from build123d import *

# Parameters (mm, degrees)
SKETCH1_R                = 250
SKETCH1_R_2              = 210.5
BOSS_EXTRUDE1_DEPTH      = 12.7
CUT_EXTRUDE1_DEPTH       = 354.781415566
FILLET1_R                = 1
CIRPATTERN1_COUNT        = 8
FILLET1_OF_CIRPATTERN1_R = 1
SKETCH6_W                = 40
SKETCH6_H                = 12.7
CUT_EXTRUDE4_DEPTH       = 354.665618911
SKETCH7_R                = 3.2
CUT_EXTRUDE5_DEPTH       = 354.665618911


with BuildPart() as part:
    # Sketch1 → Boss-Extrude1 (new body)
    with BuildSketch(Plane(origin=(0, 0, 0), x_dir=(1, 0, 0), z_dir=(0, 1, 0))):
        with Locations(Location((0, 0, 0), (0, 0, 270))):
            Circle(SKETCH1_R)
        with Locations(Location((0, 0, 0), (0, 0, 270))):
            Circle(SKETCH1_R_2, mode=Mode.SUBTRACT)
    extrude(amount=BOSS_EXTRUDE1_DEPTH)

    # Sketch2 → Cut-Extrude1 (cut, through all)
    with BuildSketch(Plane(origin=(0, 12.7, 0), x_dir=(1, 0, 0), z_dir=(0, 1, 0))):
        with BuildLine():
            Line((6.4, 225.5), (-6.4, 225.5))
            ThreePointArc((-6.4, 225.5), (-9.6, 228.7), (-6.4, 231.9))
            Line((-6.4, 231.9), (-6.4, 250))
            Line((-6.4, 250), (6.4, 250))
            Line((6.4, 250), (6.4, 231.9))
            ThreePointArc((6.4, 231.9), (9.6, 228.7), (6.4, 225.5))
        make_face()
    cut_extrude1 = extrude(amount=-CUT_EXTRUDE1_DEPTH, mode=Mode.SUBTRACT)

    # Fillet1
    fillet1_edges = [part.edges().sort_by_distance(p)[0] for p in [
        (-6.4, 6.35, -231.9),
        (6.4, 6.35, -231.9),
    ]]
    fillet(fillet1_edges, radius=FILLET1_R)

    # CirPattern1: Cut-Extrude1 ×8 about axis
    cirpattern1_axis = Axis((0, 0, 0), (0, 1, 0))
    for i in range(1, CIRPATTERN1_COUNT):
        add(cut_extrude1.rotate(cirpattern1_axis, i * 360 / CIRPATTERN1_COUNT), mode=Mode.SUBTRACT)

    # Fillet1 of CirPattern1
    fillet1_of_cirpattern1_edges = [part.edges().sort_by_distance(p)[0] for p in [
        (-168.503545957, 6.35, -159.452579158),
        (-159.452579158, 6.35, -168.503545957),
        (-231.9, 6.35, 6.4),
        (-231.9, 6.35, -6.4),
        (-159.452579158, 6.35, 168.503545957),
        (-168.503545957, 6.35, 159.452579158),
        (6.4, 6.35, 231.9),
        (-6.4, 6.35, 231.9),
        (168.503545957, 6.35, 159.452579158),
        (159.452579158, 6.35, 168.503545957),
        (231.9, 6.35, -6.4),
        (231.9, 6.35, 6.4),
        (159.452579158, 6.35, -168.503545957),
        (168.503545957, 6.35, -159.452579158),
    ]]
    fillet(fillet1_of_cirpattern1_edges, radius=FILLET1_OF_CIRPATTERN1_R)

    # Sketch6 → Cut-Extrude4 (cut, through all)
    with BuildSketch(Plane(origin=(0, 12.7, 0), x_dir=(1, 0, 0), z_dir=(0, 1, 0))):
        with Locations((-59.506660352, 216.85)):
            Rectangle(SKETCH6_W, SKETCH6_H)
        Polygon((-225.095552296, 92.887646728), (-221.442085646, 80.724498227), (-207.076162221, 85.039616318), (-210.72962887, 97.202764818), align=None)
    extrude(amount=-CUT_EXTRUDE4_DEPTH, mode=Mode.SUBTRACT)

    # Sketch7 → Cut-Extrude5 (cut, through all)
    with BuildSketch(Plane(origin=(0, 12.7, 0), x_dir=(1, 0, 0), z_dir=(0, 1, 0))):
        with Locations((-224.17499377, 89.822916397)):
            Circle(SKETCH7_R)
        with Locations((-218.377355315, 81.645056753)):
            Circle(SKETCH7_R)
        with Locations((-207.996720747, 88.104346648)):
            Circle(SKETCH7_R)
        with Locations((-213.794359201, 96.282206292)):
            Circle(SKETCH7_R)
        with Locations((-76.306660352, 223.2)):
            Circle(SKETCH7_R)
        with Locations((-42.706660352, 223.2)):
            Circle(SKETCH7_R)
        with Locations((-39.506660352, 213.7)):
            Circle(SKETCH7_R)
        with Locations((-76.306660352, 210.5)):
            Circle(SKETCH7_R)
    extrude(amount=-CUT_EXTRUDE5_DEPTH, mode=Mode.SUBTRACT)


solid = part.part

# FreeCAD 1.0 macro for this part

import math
import FreeCAD as App
import Part
import Sketcher
Q = App.Units.Quantity


def edges_at(feature, points):
    """Names of the edges that pass closest to the given points."""
    edges = feature.Shape.Edges
    near = lambda p: min(range(len(edges)), key=lambda i: edges[i].distToShape(Part.Vertex(*p))[0])
    return sorted({f"Edge{near(p) + 1}" for p in points})

doc = App.newDocument("Part")
body = doc.addObject("PartDesign::Body", "Body")

# Sketch on XZ plane
sketch1 = body.newObject("Sketcher::SketchObject", "Sketch")
sketch1.AttachmentSupport = (doc.getObject("XZ_Plane"), [""])
sketch1.MapMode = "FlatFace"
sketch1.addGeometry([
    Part.Circle(App.Vector(0, 0, 0), App.Vector(0, 0, 1), 250),
    Part.Circle(App.Vector(0, 0, 0), App.Vector(0, 0, 1), 210),
], False)
sketch1.addConstraint([
    Sketcher.Constraint("Coincident", 0, 3, -1, 1),
    Sketcher.Constraint("Coincident", 1, 3, -1, 1),
    Sketcher.Constraint("Diameter", 0, Q("500 mm")),
    Sketcher.Constraint("Diameter", 1, Q("421 mm")),
])
pad1 = body.newObject("PartDesign::Pad", "Pad")
pad1.Profile = sketch1
pad1.Length = 12.7
pad1.Reversed = True

# Sketch on XZ plane
sketch2 = body.newObject("Sketcher::SketchObject", "Sketch001")
sketch2.AttachmentSupport = (doc.getObject("XZ_Plane"), [""])
sketch2.MapMode = "FlatFace"
sketch2.AttachmentOffset = App.Placement(App.Vector(0, 0, -12.7), App.Rotation())
sketch2.addGeometry([
    Part.LineSegment(App.Vector(-6.4, -225.5, 0), App.Vector(6.4, -225.5, 0)),  # 0
    Part.ArcOfCircle(Part.Circle(App.Vector(6.4, -228.7, 0), App.Vector(0, 0, 1), 3.2), math.radians(-90), math.radians(90)),  # 1
    Part.LineSegment(App.Vector(6.4, -231.9, 0), App.Vector(6.4, -250, 0)),  # 2
    Part.LineSegment(App.Vector(6.4, -250, 0), App.Vector(-6.4, -250, 0)),  # 3
    Part.LineSegment(App.Vector(-6.4, -250, 0), App.Vector(-6.4, -231.9, 0)),  # 4
    Part.ArcOfCircle(Part.Circle(App.Vector(-6.4, -228.7, 0), App.Vector(0, 0, 1), 3.2), math.radians(90), math.radians(270)),  # 5
], False)
sketch2.addConstraint([
    Sketcher.Constraint("Tangent", 0, 2, 1, 2),
    Sketcher.Constraint("Coincident", 1, 1, 2, 1),
    Sketcher.Constraint("Coincident", 2, 2, 3, 1),
    Sketcher.Constraint("Coincident", 3, 2, 4, 1),
    Sketcher.Constraint("Coincident", 4, 2, 5, 2),
    Sketcher.Constraint("Tangent", 5, 1, 0, 1),
    Sketcher.Constraint("Horizontal", 0),
    Sketcher.Constraint("Vertical", 2),
    Sketcher.Constraint("Horizontal", 3),
    Sketcher.Constraint("Vertical", 4),
    Sketcher.Constraint("Equal", 1, 5),
    Sketcher.Constraint("Vertical", 0, 2, 1, 1),
    Sketcher.Constraint("Vertical", 5, 3, 3, 2),
    Sketcher.Constraint("Radius", 1, Q("3.2 mm")),
    Sketcher.Constraint("DistanceX", 0, 1, 0, 2, Q("12.8 mm")),
    Sketcher.Constraint("DistanceY", 2, 2, 2, 1, Q("18.1 mm")),
    Sketcher.Constraint("DistanceY", 2, 2, -1, 1, Q("250 mm")),
    Sketcher.Constraint("DistanceX", -1, 1, 1, 3, Q("6.4 mm")),
])
pocket1 = body.newObject("PartDesign::Pocket", "Pocket")
pocket1.Profile = sketch2
pocket1.Type = "ThroughAll"
pocket1.Reversed = True
doc.recompute()

fillet = body.newObject("PartDesign::Fillet", "Fillet")
fillet.Base = (pocket1, edges_at(pocket1, [(-6.4, 6.35, -231.9), (6.4, 6.35, -231.9)]))
fillet.Radius = 1
doc.recompute()

polarpattern = body.newObject("PartDesign::PolarPattern", "PolarPattern")
polarpattern.Originals = [pocket1]
polarpattern.Axis = (doc.getObject("Y_Axis"), [""])
polarpattern.Angle = 360
polarpattern.Occurrences = 8
body.Tip = polarpattern
doc.recompute()

fillet2 = body.newObject("PartDesign::Fillet", "Fillet001")
fillet2.Base = (polarpattern, edges_at(polarpattern, [
    (-168.504, 6.35, -159.453),
    (-159.453, 6.35, -168.504),
    (-231.9, 6.35, 6.4),
    (-231.9, 6.35, -6.4),
    (-159.453, 6.35, 168.504),
    (-168.504, 6.35, 159.453),
    (6.4, 6.35, 231.9),
    (-6.4, 6.35, 231.9),
    (168.504, 6.35, 159.453),
    (159.453, 6.35, 168.504),
    (231.9, 6.35, -6.4),
    (231.9, 6.35, 6.4),
    (159.453, 6.35, -168.504),
    (168.504, 6.35, -159.453),
]))
fillet2.Radius = 1

# Sketch on XZ plane
sketch3 = body.newObject("Sketcher::SketchObject", "Sketch002")
sketch3.AttachmentSupport = (doc.getObject("XZ_Plane"), [""])
sketch3.MapMode = "FlatFace"
sketch3.AttachmentOffset = App.Placement(App.Vector(0, 0, -12.7), App.Rotation())
sketch3.addGeometry([
    Part.LineSegment(App.Vector(-80, -223, 0), App.Vector(-80, -210, 0)),  # 0
    Part.LineSegment(App.Vector(-80, -210, 0), App.Vector(-40, -210, 0)),  # 1
    Part.LineSegment(App.Vector(-40, -210, 0), App.Vector(-40, -223, 0)),  # 2
    Part.LineSegment(App.Vector(-40, -223, 0), App.Vector(-80, -223, 0)),  # 3
    Part.LineSegment(App.Vector(-225, -93, 0), App.Vector(-221, -81, 0)),  # 4
    Part.LineSegment(App.Vector(-221, -81, 0), App.Vector(-207, -85, 0)),  # 5
    Part.LineSegment(App.Vector(-207, -85, 0), App.Vector(-211, -97, 0)),  # 6
    Part.LineSegment(App.Vector(-211, -97, 0), App.Vector(-225, -93, 0)),  # 7
], False)
sketch3.addConstraint([
    Sketcher.Constraint("Coincident", 0, 2, 1, 1),
    Sketcher.Constraint("Coincident", 1, 2, 2, 1),
    Sketcher.Constraint("Coincident", 2, 2, 3, 1),
    Sketcher.Constraint("Coincident", 3, 2, 0, 1),
    Sketcher.Constraint("Coincident", 4, 2, 5, 1),
    Sketcher.Constraint("Coincident", 5, 2, 6, 1),
    Sketcher.Constraint("Coincident", 6, 2, 7, 1),
    Sketcher.Constraint("Coincident", 7, 2, 4, 1),
    Sketcher.Constraint("Vertical", 0),
    Sketcher.Constraint("Horizontal", 1),
    Sketcher.Constraint("Vertical", 2),
    Sketcher.Constraint("Horizontal", 3),
    Sketcher.Constraint("Perpendicular", 4, 5),
    Sketcher.Constraint("Perpendicular", 5, 6),
    Sketcher.Constraint("Perpendicular", 6, 7),
    Sketcher.Constraint("DistanceX", 1, 1, 1, 2, Q("40 mm")),
    Sketcher.Constraint("Distance", 5, Q("15 mm")),
    Sketcher.Constraint("DistanceY", 0, 1, 0, 2, Q("12.7 mm")),
    Sketcher.Constraint("Distance", 4, Q("12.7 mm")),
    Sketcher.Constraint("DistanceY", 0, 2, -1, 1, Q("210.5 mm")),
    Sketcher.Constraint("DistanceY", 4, 2, -1, 1, Q("80.724498 mm")),
    Sketcher.Constraint("DistanceX", 5, 2, 0, 2, Q("127.569502 mm")),
    Sketcher.Constraint("DistanceX", 0, 2, -1, 1, Q("79.50666 mm")),
    Sketcher.Constraint("DistanceX", 6, 2, -1, 1, Q("210.729629 mm")),
])
pocket2 = body.newObject("PartDesign::Pocket", "Pocket001")
pocket2.Profile = sketch3
pocket2.Type = "ThroughAll"
pocket2.Reversed = True

# Sketch on XZ plane
sketch4 = body.newObject("Sketcher::SketchObject", "Sketch003")
sketch4.AttachmentSupport = (doc.getObject("XZ_Plane"), [""])
sketch4.MapMode = "FlatFace"
sketch4.AttachmentOffset = App.Placement(App.Vector(0, 0, -12.7), App.Rotation())
sketch4.addGeometry([
    Part.Circle(App.Vector(-224.2, -89.8, 0), App.Vector(0, 0, 1), 3.2),  # 0
    Part.Circle(App.Vector(-218.4, -81.6, 0), App.Vector(0, 0, 1), 3.2),  # 1
    Part.Circle(App.Vector(-208, -88.1, 0), App.Vector(0, 0, 1), 3.2),  # 2
    Part.Circle(App.Vector(-213.8, -96.3, 0), App.Vector(0, 0, 1), 3.2),  # 3
    Part.Circle(App.Vector(-76.3, -223.2, 0), App.Vector(0, 0, 1), 3.2),  # 4
    Part.Circle(App.Vector(-42.7, -223.2, 0), App.Vector(0, 0, 1), 3.2),  # 5
    Part.Circle(App.Vector(-39.5, -213.7, 0), App.Vector(0, 0, 1), 3.2),  # 6
    Part.Circle(App.Vector(-76.3, -210.5, 0), App.Vector(0, 0, 1), 3.2),  # 7
], False)
sketch4.addConstraint([
    Sketcher.Constraint("Equal", 0, 1),
    Sketcher.Constraint("Equal", 1, 2),
    Sketcher.Constraint("Equal", 2, 3),
    Sketcher.Constraint("Equal", 3, 4),
    Sketcher.Constraint("Equal", 4, 5),
    Sketcher.Constraint("Equal", 5, 6),
    Sketcher.Constraint("Equal", 6, 7),
    Sketcher.Constraint("Horizontal", 4, 3, 5, 3),
    Sketcher.Constraint("Vertical", 4, 3, 7, 3),
    Sketcher.Constraint("Diameter", 0, Q("6.4 mm")),
    Sketcher.Constraint("DistanceY", 4, 3, -1, 1, Q("223.2 mm")),
    Sketcher.Constraint("DistanceY", 6, 3, -1, 1, Q("213.7 mm")),
    Sketcher.Constraint("DistanceY", 7, 3, -1, 1, Q("210.5 mm")),
    Sketcher.Constraint("DistanceX", 4, 3, 5, 3, Q("33.6 mm")),
    Sketcher.Constraint("DistanceX", 5, 3, 6, 3, Q("3.2 mm")),
    Sketcher.Constraint("DistanceX", 3, 3, 4, 3, Q("137.487699 mm")),
    Sketcher.Constraint("DistanceX", 2, 3, -1, 1, Q("207.996721 mm")),
    Sketcher.Constraint("DistanceX", 3, 3, -1, 1, Q("213.794359 mm")),
    Sketcher.Constraint("DistanceX", 0, 3, 1, 3, Q("5.797638 mm")),
    Sketcher.Constraint("DistanceY", 0, 3, 1, 3, Q("8.17786 mm")),
    Sketcher.Constraint("DistanceY", 2, 3, 1, 3, Q("6.45929 mm")),
    Sketcher.Constraint("DistanceY", 3, 3, 2, 3, Q("8.17786 mm")),
    Sketcher.Constraint("DistanceX", 0, 3, -1, 1, Q("224.174994 mm")),
    Sketcher.Constraint("DistanceY", 0, 3, -1, 1, Q("89.822916 mm")),
])
pocket3 = body.newObject("PartDesign::Pocket", "Pocket002")
pocket3.Profile = sketch4
pocket3.Type = "ThroughAll"
pocket3.Reversed = True

doc.recompute()
